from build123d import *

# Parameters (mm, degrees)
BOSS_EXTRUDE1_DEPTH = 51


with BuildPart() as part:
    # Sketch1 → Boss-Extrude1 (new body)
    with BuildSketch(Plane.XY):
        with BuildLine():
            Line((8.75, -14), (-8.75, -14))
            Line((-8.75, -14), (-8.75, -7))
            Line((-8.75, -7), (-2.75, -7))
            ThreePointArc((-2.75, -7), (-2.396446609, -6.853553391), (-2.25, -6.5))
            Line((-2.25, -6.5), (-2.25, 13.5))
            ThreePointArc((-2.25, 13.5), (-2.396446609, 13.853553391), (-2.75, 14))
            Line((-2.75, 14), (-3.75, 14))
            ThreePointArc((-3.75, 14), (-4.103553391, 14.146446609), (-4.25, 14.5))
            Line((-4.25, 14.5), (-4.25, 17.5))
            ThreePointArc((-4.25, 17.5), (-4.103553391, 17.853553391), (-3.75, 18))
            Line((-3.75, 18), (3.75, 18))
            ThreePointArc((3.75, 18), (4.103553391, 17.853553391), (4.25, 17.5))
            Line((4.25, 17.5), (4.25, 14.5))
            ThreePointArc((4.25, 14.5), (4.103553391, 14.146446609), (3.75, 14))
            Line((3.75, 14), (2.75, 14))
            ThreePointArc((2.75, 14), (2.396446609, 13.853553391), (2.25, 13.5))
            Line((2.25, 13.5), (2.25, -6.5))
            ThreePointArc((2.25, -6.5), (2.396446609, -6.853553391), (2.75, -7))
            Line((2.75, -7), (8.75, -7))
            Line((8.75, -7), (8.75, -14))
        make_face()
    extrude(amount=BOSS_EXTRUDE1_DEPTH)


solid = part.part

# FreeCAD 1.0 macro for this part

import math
import FreeCAD as App
import Part
import Sketcher
from FreeCAD import Vector
Q = App.Units.Quantity

doc = App.newDocument("Part")
body = doc.addObject("PartDesign::Body", "Body")

sketch1 = body.newObject("Sketcher::SketchObject", "Sketch")
sketch1.AttachmentSupport = (doc.getObject("XY_Plane"), [""])
sketch1.MapMode = "FlatFace"
sketch1.addGeometry([
    Part.LineSegment(Vector(-8.75, -14, 0), Vector(8.75, -14, 0)),
    Part.LineSegment(Vector(8.75, -14, 0), Vector(8.75, -7, 0)),
    Part.LineSegment(Vector(8.75, -7, 0), Vector(2.75, -7, 0)),
    Part.ArcOfCircle(Part.Circle(Vector(2.75, -6.5, 0), Vector(0, 0, 1), 0.5), math.radians(180), math.radians(270)),
    Part.LineSegment(Vector(2.25, -6.5, 0), Vector(2.25, 13.5, 0)),
    Part.ArcOfCircle(Part.Circle(Vector(2.75, 13.5, 0), Vector(0, 0, 1), 0.5), math.radians(90), math.radians(180)),
    Part.LineSegment(Vector(2.75, 14, 0), Vector(3.75, 14, 0)),
    Part.ArcOfCircle(Part.Circle(Vector(3.75, 14.5, 0), Vector(0, 0, 1), 0.5), math.radians(-90), math.radians(0)),
    Part.LineSegment(Vector(4.25, 14.5, 0), Vector(4.25, 17.5, 0)),
    Part.ArcOfCircle(Part.Circle(Vector(3.75, 17.5, 0), Vector(0, 0, 1), 0.5), math.radians(0), math.radians(90)),
    Part.LineSegment(Vector(3.75, 18, 0), Vector(-3.75, 18, 0)),
    Part.ArcOfCircle(Part.Circle(Vector(-3.75, 17.5, 0), Vector(0, 0, 1), 0.5), math.radians(90), math.radians(180)),
    Part.LineSegment(Vector(-4.25, 17.5, 0), Vector(-4.25, 14.5, 0)),
    Part.ArcOfCircle(Part.Circle(Vector(-3.75, 14.5, 0), Vector(0, 0, 1), 0.5), math.radians(180), math.radians(270)),
    Part.LineSegment(Vector(-3.75, 14, 0), Vector(-2.75, 14, 0)),
    Part.ArcOfCircle(Part.Circle(Vector(-2.75, 13.5, 0), Vector(0, 0, 1), 0.5), math.radians(0), math.radians(90)),
    Part.LineSegment(Vector(-2.25, 13.5, 0), Vector(-2.25, -6.5, 0)),
    Part.ArcOfCircle(Part.Circle(Vector(-2.75, -6.5, 0), Vector(0, 0, 1), 0.5), math.radians(-90), math.radians(0)),
    Part.LineSegment(Vector(-2.75, -7, 0), Vector(-8.75, -7, 0)),
    Part.LineSegment(Vector(-8.75, -7, 0), Vector(-8.75, -14, 0)),
], False)
sketch1.addConstraint([
    Sketcher.Constraint("Coincident", 0, 2, 1, 1),
    Sketcher.Constraint("Coincident", 1, 2, 2, 1),
    Sketcher.Constraint("Tangent", 2, 2, 3, 2),
    Sketcher.Constraint("Tangent", 3, 1, 4, 1),
    Sketcher.Constraint("Tangent", 4, 2, 5, 2),
    Sketcher.Constraint("Tangent", 5, 1, 6, 1),
    Sketcher.Constraint("Tangent", 6, 2, 7, 1),
    Sketcher.Constraint("Tangent", 7, 2, 8, 1),
    Sketcher.Constraint("Tangent", 8, 2, 9, 1),
    Sketcher.Constraint("Tangent", 9, 2, 10, 1),
    Sketcher.Constraint("Tangent", 10, 2, 11, 1),
    Sketcher.Constraint("Tangent", 11, 2, 12, 1),
    Sketcher.Constraint("Tangent", 12, 2, 13, 1),
    Sketcher.Constraint("Tangent", 13, 2, 14, 1),
    Sketcher.Constraint("Tangent", 14, 2, 15, 2),
    Sketcher.Constraint("Tangent", 15, 1, 16, 1),
    Sketcher.Constraint("Tangent", 16, 2, 17, 2),
    Sketcher.Constraint("Tangent", 17, 1, 18, 1),
    Sketcher.Constraint("Coincident", 18, 2, 19, 1),
    Sketcher.Constraint("Coincident", 19, 2, 0, 1),
    Sketcher.Constraint("Horizontal", 0),
    Sketcher.Constraint("Vertical", 1),
    Sketcher.Constraint("Horizontal", 2),
    Sketcher.Constraint("Vertical", 4),
    Sketcher.Constraint("Horizontal", 6),
    Sketcher.Constraint("Vertical", 8),
    Sketcher.Constraint("Horizontal", 10),
    Sketcher.Constraint("Vertical", 12),
    Sketcher.Constraint("Horizontal", 14),
    Sketcher.Constraint("Vertical", 16),
    Sketcher.Constraint("Horizontal", 18),
    Sketcher.Constraint("Vertical", 19),
    Sketcher.Constraint("Equal", 3, 5),
    Sketcher.Constraint("Equal", 5, 7),
    Sketcher.Constraint("Equal", 7, 9),
    Sketcher.Constraint("Equal", 9, 11),
    Sketcher.Constraint("Equal", 11, 13),
    Sketcher.Constraint("Equal", 13, 15),
    Sketcher.Constraint("Equal", 15, 17),
    Sketcher.Constraint("Symmetric", 7, 3, 13, 3, -2),
    Sketcher.Constraint("Symmetric", 3, 3, 17, 3, -2),
    Sketcher.Constraint("Equal", 2, 18),
    Sketcher.Constraint("Radius", 3, Q("0.5 mm")),
    Sketcher.Constraint("DistanceX", 2, 2, 2, 1, Q("6 mm")),
    Sketcher.Constraint("DistanceX", 6, 1, 6, 2, Q("1 mm")),
    Sketcher.Constraint("DistanceY", 1, 1, 1, 2, Q("7 mm")),
    Sketcher.Constraint("DistanceY", 4, 1, 4, 2, Q("20 mm")),
    Sketcher.Constraint("DistanceY", 8, 1, 8, 2, Q("3 mm")),
    Sketcher.Constraint("DistanceX", 0, 1, 0, 2, Q("17.5 mm")),
    Sketcher.Constraint("DistanceY", 0, 2, -1, 1, Q("14 mm")),
])
pad1 = body.newObject("PartDesign::Pad", "Pad")
pad1.Profile = sketch1
pad1.Length = 51

doc.recompute()
